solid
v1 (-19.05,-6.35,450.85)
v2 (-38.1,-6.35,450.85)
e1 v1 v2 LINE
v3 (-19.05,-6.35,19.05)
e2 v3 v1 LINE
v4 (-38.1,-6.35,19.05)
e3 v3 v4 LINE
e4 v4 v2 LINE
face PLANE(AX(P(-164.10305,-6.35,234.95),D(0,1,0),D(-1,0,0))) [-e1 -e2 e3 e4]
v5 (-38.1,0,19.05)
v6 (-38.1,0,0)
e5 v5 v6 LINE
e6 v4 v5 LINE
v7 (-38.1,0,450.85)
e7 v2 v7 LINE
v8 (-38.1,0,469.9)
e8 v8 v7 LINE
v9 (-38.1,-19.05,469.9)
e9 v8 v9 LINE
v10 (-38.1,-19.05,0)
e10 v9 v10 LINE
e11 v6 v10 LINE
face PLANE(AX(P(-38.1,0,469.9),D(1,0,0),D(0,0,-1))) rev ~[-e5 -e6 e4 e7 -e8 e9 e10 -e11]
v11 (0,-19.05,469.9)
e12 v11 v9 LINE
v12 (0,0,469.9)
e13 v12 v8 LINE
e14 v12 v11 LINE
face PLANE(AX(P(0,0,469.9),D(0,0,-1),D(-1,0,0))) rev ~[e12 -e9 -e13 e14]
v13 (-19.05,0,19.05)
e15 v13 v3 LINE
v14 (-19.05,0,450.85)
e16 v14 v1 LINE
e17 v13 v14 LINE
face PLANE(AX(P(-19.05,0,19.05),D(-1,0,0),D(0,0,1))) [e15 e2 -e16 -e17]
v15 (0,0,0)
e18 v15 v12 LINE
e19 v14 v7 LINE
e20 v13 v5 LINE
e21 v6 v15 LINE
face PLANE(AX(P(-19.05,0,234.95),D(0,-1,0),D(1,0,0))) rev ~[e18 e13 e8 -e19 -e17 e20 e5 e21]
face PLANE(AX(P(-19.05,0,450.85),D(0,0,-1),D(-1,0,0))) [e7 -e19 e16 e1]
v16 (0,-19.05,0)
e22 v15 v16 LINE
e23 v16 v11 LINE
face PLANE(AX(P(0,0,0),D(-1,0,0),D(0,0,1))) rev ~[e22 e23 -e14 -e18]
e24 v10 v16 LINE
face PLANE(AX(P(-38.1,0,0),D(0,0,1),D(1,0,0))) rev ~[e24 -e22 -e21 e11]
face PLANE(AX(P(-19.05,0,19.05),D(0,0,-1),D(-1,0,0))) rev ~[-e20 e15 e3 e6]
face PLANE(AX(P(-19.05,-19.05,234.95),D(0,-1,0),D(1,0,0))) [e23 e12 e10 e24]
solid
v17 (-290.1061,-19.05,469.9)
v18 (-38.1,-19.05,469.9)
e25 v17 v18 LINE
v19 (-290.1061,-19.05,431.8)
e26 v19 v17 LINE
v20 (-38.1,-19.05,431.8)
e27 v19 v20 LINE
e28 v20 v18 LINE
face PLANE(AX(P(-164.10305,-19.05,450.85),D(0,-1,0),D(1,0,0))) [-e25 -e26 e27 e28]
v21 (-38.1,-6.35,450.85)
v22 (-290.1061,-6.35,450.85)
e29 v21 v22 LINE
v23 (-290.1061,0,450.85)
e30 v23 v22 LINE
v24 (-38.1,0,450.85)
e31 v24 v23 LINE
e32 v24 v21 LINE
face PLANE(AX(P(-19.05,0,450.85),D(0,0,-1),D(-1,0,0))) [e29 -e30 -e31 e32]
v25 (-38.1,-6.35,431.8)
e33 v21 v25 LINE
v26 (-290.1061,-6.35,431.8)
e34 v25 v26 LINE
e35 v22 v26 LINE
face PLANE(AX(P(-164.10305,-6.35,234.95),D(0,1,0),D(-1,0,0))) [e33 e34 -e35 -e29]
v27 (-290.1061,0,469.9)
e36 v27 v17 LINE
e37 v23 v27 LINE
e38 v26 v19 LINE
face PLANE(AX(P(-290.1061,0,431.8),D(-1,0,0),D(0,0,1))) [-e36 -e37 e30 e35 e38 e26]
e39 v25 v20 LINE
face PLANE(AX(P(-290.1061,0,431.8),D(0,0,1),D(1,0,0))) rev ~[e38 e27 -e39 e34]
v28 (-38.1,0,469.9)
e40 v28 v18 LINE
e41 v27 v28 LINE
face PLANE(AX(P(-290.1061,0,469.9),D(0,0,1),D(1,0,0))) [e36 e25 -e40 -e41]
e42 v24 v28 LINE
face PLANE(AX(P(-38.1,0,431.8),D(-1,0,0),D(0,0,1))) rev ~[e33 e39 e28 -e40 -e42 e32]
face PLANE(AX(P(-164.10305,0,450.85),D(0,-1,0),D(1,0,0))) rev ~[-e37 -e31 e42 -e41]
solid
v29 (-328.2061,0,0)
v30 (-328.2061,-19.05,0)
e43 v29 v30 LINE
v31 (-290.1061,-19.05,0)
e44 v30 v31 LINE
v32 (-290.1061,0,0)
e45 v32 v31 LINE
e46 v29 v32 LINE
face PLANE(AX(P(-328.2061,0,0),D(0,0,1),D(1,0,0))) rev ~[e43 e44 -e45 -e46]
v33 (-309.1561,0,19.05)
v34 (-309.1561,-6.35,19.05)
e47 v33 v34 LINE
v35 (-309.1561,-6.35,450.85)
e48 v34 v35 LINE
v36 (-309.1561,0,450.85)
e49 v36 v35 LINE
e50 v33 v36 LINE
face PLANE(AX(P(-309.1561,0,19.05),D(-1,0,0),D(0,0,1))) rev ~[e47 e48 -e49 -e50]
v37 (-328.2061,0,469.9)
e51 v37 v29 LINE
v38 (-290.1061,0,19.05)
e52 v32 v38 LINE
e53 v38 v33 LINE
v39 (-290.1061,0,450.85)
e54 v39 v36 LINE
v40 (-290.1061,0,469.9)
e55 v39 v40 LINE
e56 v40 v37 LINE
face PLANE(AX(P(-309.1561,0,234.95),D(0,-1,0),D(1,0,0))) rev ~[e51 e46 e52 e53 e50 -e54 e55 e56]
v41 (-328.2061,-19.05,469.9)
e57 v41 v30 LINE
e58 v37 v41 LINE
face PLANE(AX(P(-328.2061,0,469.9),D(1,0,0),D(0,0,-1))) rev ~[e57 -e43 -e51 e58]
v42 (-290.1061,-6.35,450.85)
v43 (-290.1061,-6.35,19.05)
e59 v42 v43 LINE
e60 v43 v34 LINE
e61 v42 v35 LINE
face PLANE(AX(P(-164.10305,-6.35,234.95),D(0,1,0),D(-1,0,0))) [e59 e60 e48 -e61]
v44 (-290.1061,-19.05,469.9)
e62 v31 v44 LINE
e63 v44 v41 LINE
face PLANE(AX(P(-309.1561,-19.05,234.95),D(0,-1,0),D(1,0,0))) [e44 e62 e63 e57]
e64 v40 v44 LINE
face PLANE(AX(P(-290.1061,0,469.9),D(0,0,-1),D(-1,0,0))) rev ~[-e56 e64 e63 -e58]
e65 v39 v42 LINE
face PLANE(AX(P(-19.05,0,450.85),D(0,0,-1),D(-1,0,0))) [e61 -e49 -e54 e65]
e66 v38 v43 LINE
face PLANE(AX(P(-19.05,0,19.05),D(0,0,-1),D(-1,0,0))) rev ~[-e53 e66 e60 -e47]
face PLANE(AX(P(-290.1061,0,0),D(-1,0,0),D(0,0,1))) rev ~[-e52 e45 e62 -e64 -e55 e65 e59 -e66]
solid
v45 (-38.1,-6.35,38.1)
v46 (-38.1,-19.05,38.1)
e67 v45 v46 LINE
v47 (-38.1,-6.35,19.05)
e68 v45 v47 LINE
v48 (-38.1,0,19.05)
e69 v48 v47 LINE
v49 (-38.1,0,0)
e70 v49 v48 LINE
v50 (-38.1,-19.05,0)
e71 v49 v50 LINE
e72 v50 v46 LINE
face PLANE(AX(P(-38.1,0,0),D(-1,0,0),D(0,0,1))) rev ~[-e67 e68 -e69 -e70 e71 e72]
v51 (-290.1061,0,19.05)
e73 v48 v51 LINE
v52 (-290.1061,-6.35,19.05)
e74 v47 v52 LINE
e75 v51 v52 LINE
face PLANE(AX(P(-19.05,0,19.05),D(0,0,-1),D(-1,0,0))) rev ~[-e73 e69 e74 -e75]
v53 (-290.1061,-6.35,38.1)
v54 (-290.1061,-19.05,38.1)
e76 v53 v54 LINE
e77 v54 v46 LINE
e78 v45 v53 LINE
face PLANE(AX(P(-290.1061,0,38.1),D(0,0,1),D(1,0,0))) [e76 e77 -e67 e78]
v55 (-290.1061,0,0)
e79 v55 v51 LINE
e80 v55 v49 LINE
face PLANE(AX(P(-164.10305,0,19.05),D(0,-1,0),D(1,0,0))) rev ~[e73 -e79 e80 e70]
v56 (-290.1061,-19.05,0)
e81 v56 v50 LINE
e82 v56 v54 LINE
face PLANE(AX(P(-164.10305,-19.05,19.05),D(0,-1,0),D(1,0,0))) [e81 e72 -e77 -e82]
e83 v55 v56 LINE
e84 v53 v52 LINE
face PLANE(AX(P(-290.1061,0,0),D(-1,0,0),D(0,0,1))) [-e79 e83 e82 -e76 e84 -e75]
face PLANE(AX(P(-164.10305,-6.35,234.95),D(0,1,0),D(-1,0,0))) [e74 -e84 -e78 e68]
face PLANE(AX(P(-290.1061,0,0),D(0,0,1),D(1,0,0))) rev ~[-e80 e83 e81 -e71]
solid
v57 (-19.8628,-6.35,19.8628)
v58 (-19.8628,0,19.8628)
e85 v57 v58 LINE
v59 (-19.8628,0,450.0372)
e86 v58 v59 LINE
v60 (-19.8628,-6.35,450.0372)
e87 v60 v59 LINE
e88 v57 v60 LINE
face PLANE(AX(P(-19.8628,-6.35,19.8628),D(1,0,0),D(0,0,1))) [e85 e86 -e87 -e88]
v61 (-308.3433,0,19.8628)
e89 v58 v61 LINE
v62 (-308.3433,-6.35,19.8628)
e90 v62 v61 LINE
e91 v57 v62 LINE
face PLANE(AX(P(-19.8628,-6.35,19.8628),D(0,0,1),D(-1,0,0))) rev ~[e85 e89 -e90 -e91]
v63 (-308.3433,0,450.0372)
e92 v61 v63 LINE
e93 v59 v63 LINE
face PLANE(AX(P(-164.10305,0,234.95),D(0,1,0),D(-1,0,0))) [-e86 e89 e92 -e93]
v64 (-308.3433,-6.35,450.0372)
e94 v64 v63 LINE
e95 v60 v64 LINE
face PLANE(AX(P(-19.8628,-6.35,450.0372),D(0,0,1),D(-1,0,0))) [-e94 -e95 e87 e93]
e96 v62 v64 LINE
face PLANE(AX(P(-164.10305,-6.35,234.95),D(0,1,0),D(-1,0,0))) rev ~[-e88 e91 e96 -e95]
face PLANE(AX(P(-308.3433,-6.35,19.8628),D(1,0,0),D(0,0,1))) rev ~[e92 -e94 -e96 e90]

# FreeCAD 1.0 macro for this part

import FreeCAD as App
import Part
import Sketcher
from FreeCAD import Vector
Q = App.Units.Quantity


def add_polygon(sketch, points):
    """Adds a closed chain of lines whose ends are joined by coincident constraints."""
    first, n = sketch.GeometryCount, len(points)
    for a, b in zip(points, points[1:] + points[:1]):
        sketch.addGeometry(Part.LineSegment(App.Vector(*a, 0), App.Vector(*b, 0)), False)
    for i in range(n):
        sketch.addConstraint(Sketcher.Constraint("Coincident", first + i, 2, first + (i + 1) % n, 1))

doc = App.newDocument("Part")
body = doc.addObject("PartDesign::Body", "Body")

sketch1 = doc.addObject("Sketcher::SketchObject", "Sketch")
body.addObject(sketch1)
sketch1.AttachmentSupport = (doc.XZ_Plane, [""])
sketch1.MapMode = "FlatFace"
add_polygon(sketch1, [(-290, 470), (-290, 432), (-38, 432), (-38, 470)])
sketch1.addConstraint([
    Sketcher.Constraint("Vertical", 0),
    Sketcher.Constraint("Horizontal", 1),
    Sketcher.Constraint("Vertical", 2),
    Sketcher.Constraint("Horizontal", 3),
    Sketcher.Constraint("DistanceY", 0, 2, 0, 1, Q("1.5 in")),
    Sketcher.Constraint("DistanceY", -1, 1, 0, 2, Q("17 in")),
    Sketcher.Constraint("DistanceX", 1, 2, -1, 1, Q("1.5 in")),
    Sketcher.Constraint("DistanceX", 1, 1, 1, 2, Q("9.9215 in")),
])
pad1 = doc.addObject("PartDesign::Pad", "Pad")
body.addObject(pad1)
pad1.Profile = sketch1
pad1.Length = Q("0.75 in")
body2 = doc.addObject("PartDesign::Body", "Body001")

sketch2 = doc.addObject("Sketcher::SketchObject", "Sketch001")
body2.addObject(sketch2)
sketch2.AttachmentSupport = (doc.getObject("XZ_Plane001"), [""])
sketch2.MapMode = "FlatFace"
add_polygon(sketch2, [(-328, 0), (-290, 0), (-290, 470), (-328, 470)])
sketch2.addConstraint([
    Sketcher.Constraint("Horizontal", 0),
    Sketcher.Constraint("Vertical", 1),
    Sketcher.Constraint("Horizontal", 2),
    Sketcher.Constraint("Vertical", 3),
    Sketcher.Constraint("PointOnObject", 0, 2, -1),
    Sketcher.Constraint("DistanceX", 0, 1, 0, 2, Q("1.5 in")),
    Sketcher.Constraint("DistanceY", 1, 1, 1, 2, Q("18.5 in")),
    Sketcher.Constraint("DistanceX", 0, 2, -1, 1, Q("11.4215 in")),
])
pad2 = doc.addObject("PartDesign::Pad", "Pad001")
body2.addObject(pad2)
pad2.Profile = sketch2
pad2.Length = Q("0.75 in")
body3 = doc.addObject("PartDesign::Body", "Body002")

sketch3 = doc.addObject("Sketcher::SketchObject", "Sketch002")
body3.addObject(sketch3)
sketch3.AttachmentSupport = (doc.getObject("XZ_Plane002"), [""])
sketch3.MapMode = "FlatFace"
add_polygon(sketch3, [(-290, 38), (-290, 0), (-38, 0), (-38, 38)])
sketch3.addConstraint([
    Sketcher.Constraint("Vertical", 0),
    Sketcher.Constraint("Horizontal", 1),
    Sketcher.Constraint("Vertical", 2),
    Sketcher.Constraint("Horizontal", 3),
    Sketcher.Constraint("PointOnObject", 0, 2, -1),
    Sketcher.Constraint("DistanceY", 0, 2, 0, 1, Q("1.5 in")),
    Sketcher.Constraint("DistanceX", 1, 2, -1, 1, Q("1.5 in")),
    Sketcher.Constraint("DistanceX", 1, 1, 1, 2, Q("9.9215 in")),
])
pad3 = doc.addObject("PartDesign::Pad", "Pad002")
body3.addObject(pad3)
pad3.Profile = sketch3
pad3.Length = Q("0.75 in")
body4 = doc.addObject("PartDesign::Body", "Body003")

sketch4 = doc.addObject("Sketcher::SketchObject", "Sketch003")
body4.addObject(sketch4)
sketch4.AttachmentSupport = (doc.getObject("XZ_Plane003"), [""])
sketch4.MapMode = "FlatFace"
add_polygon(sketch4, [(-38, 0), (0, 0), (0, 470), (-38, 470)])
sketch4.addConstraint([
    Sketcher.Constraint("Horizontal", 0),
    Sketcher.Constraint("Vertical", 1),
    Sketcher.Constraint("Horizontal", 2),
    Sketcher.Constraint("Vertical", 3),
    Sketcher.Constraint("Coincident", 0, 2, -1, 1),
    Sketcher.Constraint("DistanceX", 0, 1, 0, 2, Q("1.5 in")),
    Sketcher.Constraint("DistanceY", 1, 1, 1, 2, Q("18.5 in")),
])
pad4 = doc.addObject("PartDesign::Pad", "Pad003")
body4.addObject(pad4)
pad4.Profile = sketch4
pad4.Length = Q("0.75 in")
body5 = doc.addObject("PartDesign::Body", "Body004")

sketch5 = doc.addObject("Sketcher::SketchObject", "Sketch004")
body5.addObject(sketch5)
sketch5.AttachmentSupport = (doc.getObject("XZ_Plane004"), [""])
sketch5.MapMode = "FlatFace"
add_polygon(sketch5, [(-19, 451), (-19, 19), (-309, 19), (-309, 451)])
sketch5.addConstraint([
    Sketcher.Constraint("Vertical", 0),
    Sketcher.Constraint("Horizontal", 1),
    Sketcher.Constraint("Vertical", 2),
    Sketcher.Constraint("Horizontal", 3),
    Sketcher.Constraint("DistanceY", 0, 2, 0, 1, Q("17 in")),
    Sketcher.Constraint("DistanceX", 0, 2, -1, 1, Q("0.75 in")),
    Sketcher.Constraint("DistanceY", -1, 1, 0, 2, Q("0.75 in")),
    Sketcher.Constraint("DistanceX", 1, 2, 1, 1, Q("11.4215 in")),
])
pad5 = doc.addObject("PartDesign::Pad", "Pad004")
body5.addObject(pad5)
pad5.Profile = sketch5
pad5.Length = Q("0.25 in")
doc.recompute()

body6 = doc.addObject("PartDesign::Body", "Body005")
body6.BaseFeature = body5
boolean = doc.addObject("PartDesign::Boolean", "Boolean")
body.addObject(boolean)
boolean.Type = "Cut"
boolean.addObjects([body6])
doc.recompute()

body7 = doc.addObject("PartDesign::Body", "Body006")
body7.BaseFeature = body5
boolean2 = doc.addObject("PartDesign::Boolean", "Boolean001")
body2.addObject(boolean2)
boolean2.Type = "Cut"
boolean2.addObjects([body7])
doc.recompute()

body8 = doc.addObject("PartDesign::Body", "Body007")
body8.BaseFeature = body5
boolean3 = doc.addObject("PartDesign::Boolean", "Boolean002")
body3.addObject(boolean3)
boolean3.Type = "Cut"
boolean3.addObjects([body8])
doc.recompute()

boolean4 = doc.addObject("PartDesign::Boolean", "Boolean003")
body4.addObject(boolean4)
boolean4.Type = "Cut"
boolean4.addObjects([body5])
body9 = doc.addObject("PartDesign::Body", "Body008")

sketch6 = doc.addObject("Sketcher::SketchObject", "Sketch005")
body9.addObject(sketch6)
sketch6.AttachmentSupport = (doc.getObject("XZ_Plane008"), [""])
sketch6.MapMode = "FlatFace"
sketch6.AttachmentOffset = App.Placement(Vector(0, 0, 0.25 * 25.4), App.Rotation())
add_polygon(sketch6, [(-20, 450), (-20, 20), (-308, 20), (-308, 450)])
sketch6.addConstraint([
    Sketcher.Constraint("Vertical", 0),
    Sketcher.Constraint("Horizontal", 1),
    Sketcher.Constraint("Vertical", 2),
    Sketcher.Constraint("Horizontal", 3),
    Sketcher.Constraint("DistanceY", 0, 2, 0, 1, Q("16.936 in")),
    Sketcher.Constraint("DistanceX", 1, 2, 1, 1, Q("11.3575 in")),
    Sketcher.Constraint("DistanceX", 0, 2, -1, 1, Q("0.782 in")),
    Sketcher.Constraint("DistanceY", -1, 1, 0, 2, Q("0.782 in")),
])
pad6 = doc.addObject("PartDesign::Pad", "Pad005")
body9.addObject(pad6)
pad6.Profile = sketch6
pad6.Length = Q("0.25 in")
pad6.Reversed = True

doc.recompute()
